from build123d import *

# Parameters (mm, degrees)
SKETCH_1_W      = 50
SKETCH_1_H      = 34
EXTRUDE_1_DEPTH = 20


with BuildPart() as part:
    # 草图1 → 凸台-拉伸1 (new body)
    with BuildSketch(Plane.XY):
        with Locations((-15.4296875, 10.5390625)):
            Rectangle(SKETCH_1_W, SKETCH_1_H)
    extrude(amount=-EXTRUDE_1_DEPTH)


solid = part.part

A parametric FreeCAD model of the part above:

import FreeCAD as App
import Part
import Sketcher

V = App.Vector


def add_polygon(sketch, points):
    """Adds a closed chain of lines whose ends are joined by coincident constraints."""
    first, n = sketch.GeometryCount, len(points)
    for a, b in zip(points, points[1:] + points[:1]):
        sketch.addGeometry(Part.LineSegment(App.Vector(*a, 0), App.Vector(*b, 0)), False)
    for i in range(n):
        sketch.addConstraint(Sketcher.Constraint("Coincident", first + i, 2, first + (i + 1) % n, 1))

doc = App.newDocument("Part")
params = doc.addObject("Spreadsheet::Sheet", "Params")
for row, (alias, value) in enumerate([
    ("sketch1_width", "50 mm"),
    ("sketch1_height", "34 mm"),
    ("pad1_length", "20 mm"),
], start=1):
    params.set(f"A{row}", alias)
    params.set(f"B{row}", "=" + value)
    params.setAlias(f"B{row}", alias)

body = doc.addObject("PartDesign::Body", "Body")

# Sketch on XY plane
sketch1 = body.newObject("Sketcher::SketchObject", "Sketch")
sketch1.AttachmentSupport = (doc.getObject("XY_Plane"), [""])
sketch1.MapMode = "FlatFace"
add_polygon(sketch1, [(-40.429688, 27.539062), (-40.429688, -6.460938), (9.570312, -6.460938), (9.570312, 27.539062)])  # lines 0-3
sketch1.addConstraint([
    Sketcher.Constraint("Vertical", 0),
    Sketcher.Constraint("Horizontal", 1),
    Sketcher.Constraint("Vertical", 2),
    Sketcher.Constraint("Horizontal", 3),
    Sketcher.Constraint("DistanceX", 1, 1, 1, 2, 50.0),
    Sketcher.Constraint("DistanceY", 0, 2, 0, 1, 34.0),
    Sketcher.Constraint("DistanceX", 0, 2, -1, 1, 40.429688),
    Sketcher.Constraint("DistanceY", 0, 2, -1, 1, 6.460938),
])
sketch1.setExpression("Constraints[8]", "Params.sketch1_width")
sketch1.setExpression("Constraints[9]", "Params.sketch1_height")
pad1 = body.newObject("PartDesign::Pad", "Pad")
pad1.Profile = sketch1
pad1.setExpression("Length", "Params.pad1_length")
pad1.Reversed = True

doc.recompute()
